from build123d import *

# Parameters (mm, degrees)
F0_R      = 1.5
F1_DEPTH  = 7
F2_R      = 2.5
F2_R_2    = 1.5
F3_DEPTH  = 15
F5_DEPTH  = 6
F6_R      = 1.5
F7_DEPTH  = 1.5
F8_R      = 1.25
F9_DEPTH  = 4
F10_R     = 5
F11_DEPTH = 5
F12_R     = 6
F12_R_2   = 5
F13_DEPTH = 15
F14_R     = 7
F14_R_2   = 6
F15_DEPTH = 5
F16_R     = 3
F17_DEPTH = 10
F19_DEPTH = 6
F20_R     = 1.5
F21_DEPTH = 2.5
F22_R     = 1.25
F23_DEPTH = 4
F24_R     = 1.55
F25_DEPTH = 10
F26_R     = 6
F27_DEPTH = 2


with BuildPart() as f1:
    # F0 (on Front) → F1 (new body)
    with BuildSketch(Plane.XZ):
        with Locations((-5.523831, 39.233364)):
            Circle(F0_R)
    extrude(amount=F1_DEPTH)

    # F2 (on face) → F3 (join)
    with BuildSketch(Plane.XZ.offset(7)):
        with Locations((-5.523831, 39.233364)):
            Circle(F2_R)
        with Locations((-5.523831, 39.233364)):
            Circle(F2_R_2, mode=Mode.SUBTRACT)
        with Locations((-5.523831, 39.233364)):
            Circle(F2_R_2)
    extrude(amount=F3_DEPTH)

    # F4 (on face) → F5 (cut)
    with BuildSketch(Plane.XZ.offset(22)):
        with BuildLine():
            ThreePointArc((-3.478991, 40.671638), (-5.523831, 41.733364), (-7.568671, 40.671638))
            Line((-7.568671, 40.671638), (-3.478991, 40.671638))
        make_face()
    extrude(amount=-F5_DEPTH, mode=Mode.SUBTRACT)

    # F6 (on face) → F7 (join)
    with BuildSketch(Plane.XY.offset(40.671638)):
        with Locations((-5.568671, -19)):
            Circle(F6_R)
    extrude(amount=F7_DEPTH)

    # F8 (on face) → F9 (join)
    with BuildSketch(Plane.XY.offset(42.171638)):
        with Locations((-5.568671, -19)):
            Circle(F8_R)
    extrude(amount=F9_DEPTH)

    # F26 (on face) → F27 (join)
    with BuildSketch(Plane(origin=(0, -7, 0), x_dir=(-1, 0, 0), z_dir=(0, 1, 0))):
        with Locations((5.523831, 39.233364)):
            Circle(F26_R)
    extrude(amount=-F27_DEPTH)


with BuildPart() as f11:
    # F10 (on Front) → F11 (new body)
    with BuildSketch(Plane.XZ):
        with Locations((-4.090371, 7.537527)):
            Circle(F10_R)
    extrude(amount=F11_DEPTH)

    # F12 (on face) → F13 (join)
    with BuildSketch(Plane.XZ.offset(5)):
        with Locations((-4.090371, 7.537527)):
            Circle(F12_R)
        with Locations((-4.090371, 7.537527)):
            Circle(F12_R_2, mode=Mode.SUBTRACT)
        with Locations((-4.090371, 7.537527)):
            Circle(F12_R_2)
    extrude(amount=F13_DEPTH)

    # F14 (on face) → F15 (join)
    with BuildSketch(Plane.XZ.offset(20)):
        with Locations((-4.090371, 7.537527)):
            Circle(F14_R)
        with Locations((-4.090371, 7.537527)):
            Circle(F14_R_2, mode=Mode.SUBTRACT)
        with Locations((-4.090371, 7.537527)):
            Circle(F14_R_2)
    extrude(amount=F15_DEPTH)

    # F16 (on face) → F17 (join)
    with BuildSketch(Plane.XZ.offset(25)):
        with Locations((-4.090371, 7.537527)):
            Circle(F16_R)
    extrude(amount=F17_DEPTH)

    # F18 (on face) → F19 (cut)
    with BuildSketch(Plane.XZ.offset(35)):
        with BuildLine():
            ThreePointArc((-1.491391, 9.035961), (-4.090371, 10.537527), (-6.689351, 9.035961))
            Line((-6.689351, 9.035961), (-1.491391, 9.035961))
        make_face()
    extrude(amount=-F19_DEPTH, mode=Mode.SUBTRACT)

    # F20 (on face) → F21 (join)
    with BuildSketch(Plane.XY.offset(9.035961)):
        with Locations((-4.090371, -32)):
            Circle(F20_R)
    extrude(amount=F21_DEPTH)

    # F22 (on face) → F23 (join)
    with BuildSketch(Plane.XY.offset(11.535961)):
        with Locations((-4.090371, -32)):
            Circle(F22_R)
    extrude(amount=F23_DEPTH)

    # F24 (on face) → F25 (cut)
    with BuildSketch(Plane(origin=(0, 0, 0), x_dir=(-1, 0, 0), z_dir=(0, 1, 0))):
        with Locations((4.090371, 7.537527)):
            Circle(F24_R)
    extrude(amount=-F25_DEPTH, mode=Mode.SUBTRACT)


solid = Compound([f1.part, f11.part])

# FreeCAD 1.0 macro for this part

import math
import FreeCAD as App
import Part
import Sketcher

doc = App.newDocument("Part")
body = doc.addObject("PartDesign::Body", "Body")

# Sketch on XZ plane
sketch1 = body.newObject("Sketcher::SketchObject", "Sketch")
sketch1.AttachmentSupport = (doc.getObject("XZ_Plane"), [""])
sketch1.MapMode = "FlatFace"
sketch1.addGeometry(Part.Circle(App.Vector(-5.5, 39.2, 0), App.Vector(0, 0, 1), 1.5), False)
sketch1.addConstraint(Sketcher.Constraint("Diameter", 0, 3.0))
sketch1.addConstraint(Sketcher.Constraint("DistanceX", 0, 3, -1, 1, 5.523831))
sketch1.addConstraint(Sketcher.Constraint("DistanceY", -1, 1, 0, 3, 39.233364))
pad1 = body.newObject("PartDesign::Pad", "Pad")
pad1.Profile = sketch1
pad1.Length = 7

# Sketch on XZ plane
sketch2 = body.newObject("Sketcher::SketchObject", "Sketch001")
sketch2.AttachmentSupport = (doc.getObject("XZ_Plane"), [""])
sketch2.MapMode = "FlatFace"
sketch2.AttachmentOffset = App.Placement(App.Vector(0, 0, 7), App.Rotation())
sketch2.addGeometry(Part.Circle(App.Vector(-5.5, 39.2, 0), App.Vector(0, 0, 1), 2.5), False)
sketch2.addConstraint(Sketcher.Constraint("Diameter", 0, 5.0))
sketch2.addConstraint(Sketcher.Constraint("DistanceX", 0, 3, -1, 1, 5.523831))
sketch2.addConstraint(Sketcher.Constraint("DistanceY", -1, 1, 0, 3, 39.233364))
pad2 = body.newObject("PartDesign::Pad", "Pad001")
pad2.Profile = sketch2
pad2.Length = 15

# Sketch on XZ plane
sketch3 = body.newObject("Sketcher::SketchObject", "Sketch002")
sketch3.AttachmentSupport = (doc.getObject("XZ_Plane"), [""])
sketch3.MapMode = "FlatFace"
sketch3.AttachmentOffset = App.Placement(App.Vector(0, 0, 22), App.Rotation())
sketch3.addGeometry(Part.ArcOfCircle(Part.Circle(App.Vector(-5.5, 39.2, 0), App.Vector(0, 0, 1), 2.5), math.radians(35), math.radians(145)), False)
sketch3.addGeometry(Part.LineSegment(App.Vector(-7.6, 40.7, 0), App.Vector(-3.5, 40.7, 0)), False)
sketch3.addConstraint(Sketcher.Constraint("Coincident", 0, 1, 1, 2))
sketch3.addConstraint(Sketcher.Constraint("Coincident", 1, 1, 0, 2))
sketch3.addConstraint(Sketcher.Constraint("Horizontal", 1))
sketch3.addConstraint(Sketcher.Constraint("Radius", 0, 2.500001))
sketch3.addConstraint(Sketcher.Constraint("DistanceX", 1, 1, 1, 2, 4.08968))
sketch3.addConstraint(Sketcher.Constraint("DistanceX", 0, 3, -1, 1, 5.523831))
sketch3.addConstraint(Sketcher.Constraint("DistanceY", -1, 1, 1, 1, 40.671638))
pocket1 = body.newObject("PartDesign::Pocket", "Pocket")
pocket1.Profile = sketch3
pocket1.Length = 6

# Sketch on XY plane
sketch4 = body.newObject("Sketcher::SketchObject", "Sketch003")
sketch4.AttachmentSupport = (doc.getObject("XY_Plane"), [""])
sketch4.MapMode = "FlatFace"
sketch4.AttachmentOffset = App.Placement(App.Vector(0, 0, 40.671638), App.Rotation())
sketch4.addGeometry(Part.Circle(App.Vector(-5.6, -19, 0), App.Vector(0, 0, 1), 1.5), False)
sketch4.addConstraint(Sketcher.Constraint("Diameter", 0, 3.0))
sketch4.addConstraint(Sketcher.Constraint("DistanceY", 0, 3, -1, 1, 19.0))
sketch4.addConstraint(Sketcher.Constraint("DistanceX", 0, 3, -1, 1, 5.568671))
pad3 = body.newObject("PartDesign::Pad", "Pad002")
pad3.Profile = sketch4
pad3.Length = 1.5

# Sketch on XY plane
sketch5 = body.newObject("Sketcher::SketchObject", "Sketch004")
sketch5.AttachmentSupport = (doc.getObject("XY_Plane"), [""])
sketch5.MapMode = "FlatFace"
sketch5.AttachmentOffset = App.Placement(App.Vector(0, 0, 42.171638), App.Rotation())
sketch5.addGeometry(Part.Circle(App.Vector(-5.6, -19, 0), App.Vector(0, 0, 1), 1.2), False)
sketch5.addConstraint(Sketcher.Constraint("Diameter", 0, 2.5))
sketch5.addConstraint(Sketcher.Constraint("DistanceY", 0, 3, -1, 1, 19.0))
sketch5.addConstraint(Sketcher.Constraint("DistanceX", 0, 3, -1, 1, 5.568671))
pad4 = body.newObject("PartDesign::Pad", "Pad003")
pad4.Profile = sketch5
pad4.Length = 4

# Sketch on XZ plane
sketch6 = body.newObject("Sketcher::SketchObject", "Sketch005")
sketch6.AttachmentSupport = (doc.getObject("XZ_Plane"), [""])
sketch6.MapMode = "FlatFace"
sketch6.AttachmentOffset = App.Placement(App.Vector(0, 0, 7), App.Rotation())
sketch6.addGeometry(Part.Circle(App.Vector(-6, 39, 0), App.Vector(0, 0, 1), 6), False)
sketch6.addConstraint(Sketcher.Constraint("Diameter", 0, 12.0))
sketch6.addConstraint(Sketcher.Constraint("DistanceX", 0, 3, -1, 1, 5.523831))
sketch6.addConstraint(Sketcher.Constraint("DistanceY", -1, 1, 0, 3, 39.233364))
pad5 = body.newObject("PartDesign::Pad", "Pad004")
pad5.Profile = sketch6
pad5.Length = 2
body2 = doc.addObject("PartDesign::Body", "Body001")

# Sketch on XZ plane
sketch7 = body2.newObject("Sketcher::SketchObject", "Sketch006")
sketch7.AttachmentSupport = (doc.getObject("XZ_Plane001"), [""])
sketch7.MapMode = "FlatFace"
sketch7.addGeometry(Part.Circle(App.Vector(-4, 8, 0), App.Vector(0, 0, 1), 5), False)
sketch7.addConstraint(Sketcher.Constraint("Diameter", 0, 10.0))
sketch7.addConstraint(Sketcher.Constraint("DistanceX", 0, 3, -1, 1, 4.090371))
sketch7.addConstraint(Sketcher.Constraint("DistanceY", -1, 1, 0, 3, 7.537527))
pad6 = body2.newObject("PartDesign::Pad", "Pad005")
pad6.Profile = sketch7
pad6.Length = 5

# Sketch on XZ plane
sketch8 = body2.newObject("Sketcher::SketchObject", "Sketch007")
sketch8.AttachmentSupport = (doc.getObject("XZ_Plane001"), [""])
sketch8.MapMode = "FlatFace"
sketch8.AttachmentOffset = App.Placement(App.Vector(0, 0, 5), App.Rotation())
sketch8.addGeometry(Part.Circle(App.Vector(-4, 8, 0), App.Vector(0, 0, 1), 6), False)
sketch8.addConstraint(Sketcher.Constraint("Diameter", 0, 12.0))
sketch8.addConstraint(Sketcher.Constraint("DistanceX", 0, 3, -1, 1, 4.090371))
sketch8.addConstraint(Sketcher.Constraint("DistanceY", -1, 1, 0, 3, 7.537527))
pad7 = body2.newObject("PartDesign::Pad", "Pad006")
pad7.Profile = sketch8
pad7.Length = 15

# Sketch on XZ plane
sketch9 = body2.newObject("Sketcher::SketchObject", "Sketch008")
sketch9.AttachmentSupport = (doc.getObject("XZ_Plane001"), [""])
sketch9.MapMode = "FlatFace"
sketch9.AttachmentOffset = App.Placement(App.Vector(0, 0, 20), App.Rotation())
sketch9.addGeometry(Part.Circle(App.Vector(-4, 8, 0), App.Vector(0, 0, 1), 7), False)
sketch9.addConstraint(Sketcher.Constraint("Diameter", 0, 14.0))
sketch9.addConstraint(Sketcher.Constraint("DistanceX", 0, 3, -1, 1, 4.090371))
sketch9.addConstraint(Sketcher.Constraint("DistanceY", -1, 1, 0, 3, 7.537527))
pad8 = body2.newObject("PartDesign::Pad", "Pad007")
pad8.Profile = sketch9
pad8.Length = 5

# Sketch on XZ plane
sketch10 = body2.newObject("Sketcher::SketchObject", "Sketch009")
sketch10.AttachmentSupport = (doc.getObject("XZ_Plane001"), [""])
sketch10.MapMode = "FlatFace"
sketch10.AttachmentOffset = App.Placement(App.Vector(0, 0, 25), App.Rotation())
sketch10.addGeometry(Part.Circle(App.Vector(-4.1, 7.5, 0), App.Vector(0, 0, 1), 3), False)
sketch10.addConstraint(Sketcher.Constraint("Diameter", 0, 6.0))
sketch10.addConstraint(Sketcher.Constraint("DistanceX", 0, 3, -1, 1, 4.090371))
sketch10.addConstraint(Sketcher.Constraint("DistanceY", -1, 1, 0, 3, 7.537527))
pad9 = body2.newObject("PartDesign::Pad", "Pad008")
pad9.Profile = sketch10
pad9.Length = 10

# Sketch on XZ plane
sketch11 = body2.newObject("Sketcher::SketchObject", "Sketch010")
sketch11.AttachmentSupport = (doc.getObject("XZ_Plane001"), [""])
sketch11.MapMode = "FlatFace"
sketch11.AttachmentOffset = App.Placement(App.Vector(0, 0, 35), App.Rotation())
sketch11.addGeometry(Part.ArcOfCircle(Part.Circle(App.Vector(-4.1, 7.5, 0), App.Vector(0, 0, 1), 3), math.radians(30), math.radians(150)), False)
sketch11.addGeometry(Part.LineSegment(App.Vector(-6.7, 9, 0), App.Vector(-1.5, 9, 0)), False)
sketch11.addConstraint(Sketcher.Constraint("Coincident", 0, 1, 1, 2))
sketch11.addConstraint(Sketcher.Constraint("Coincident", 1, 1, 0, 2))
sketch11.addConstraint(Sketcher.Constraint("Horizontal", 1))
sketch11.addConstraint(Sketcher.Constraint("Radius", 0, 3.0))
sketch11.addConstraint(Sketcher.Constraint("DistanceX", 1, 1, 1, 2, 5.19796))
sketch11.addConstraint(Sketcher.Constraint("DistanceX", 0, 3, -1, 1, 4.090371))
sketch11.addConstraint(Sketcher.Constraint("DistanceY", -1, 1, 0, 1, 9.035961))
pocket2 = body2.newObject("PartDesign::Pocket", "Pocket001")
pocket2.Profile = sketch11
pocket2.Length = 6

# Sketch on XY plane
sketch12 = body2.newObject("Sketcher::SketchObject", "Sketch011")
sketch12.AttachmentSupport = (doc.getObject("XY_Plane001"), [""])
sketch12.MapMode = "FlatFace"
sketch12.AttachmentOffset = App.Placement(App.Vector(0, 0, 9.035961), App.Rotation())
sketch12.addGeometry(Part.Circle(App.Vector(-4.1, -32, 0), App.Vector(0, 0, 1), 1.5), False)
sketch12.addConstraint(Sketcher.Constraint("Diameter", 0, 3.0))
sketch12.addConstraint(Sketcher.Constraint("DistanceY", 0, 3, -1, 1, 32.0))
sketch12.addConstraint(Sketcher.Constraint("DistanceX", 0, 3, -1, 1, 4.090371))
pad10 = body2.newObject("PartDesign::Pad", "Pad009")
pad10.Profile = sketch12
pad10.Length = 2.5

# Sketch on XY plane
sketch13 = body2.newObject("Sketcher::SketchObject", "Sketch012")
sketch13.AttachmentSupport = (doc.getObject("XY_Plane001"), [""])
sketch13.MapMode = "FlatFace"
sketch13.AttachmentOffset = App.Placement(App.Vector(0, 0, 11.535961), App.Rotation())
sketch13.addGeometry(Part.Circle(App.Vector(-4.1, -32, 0), App.Vector(0, 0, 1), 1.2), False)
sketch13.addConstraint(Sketcher.Constraint("Diameter", 0, 2.5))
sketch13.addConstraint(Sketcher.Constraint("DistanceY", 0, 3, -1, 1, 32.0))
sketch13.addConstraint(Sketcher.Constraint("DistanceX", 0, 3, -1, 1, 4.090371))
pad11 = body2.newObject("PartDesign::Pad", "Pad010")
pad11.Profile = sketch13
pad11.Length = 4

# Sketch on XZ plane
sketch14 = body2.newObject("Sketcher::SketchObject", "Sketch013")
sketch14.AttachmentSupport = (doc.getObject("XZ_Plane001"), [""])
sketch14.MapMode = "FlatFace"
sketch14.addGeometry(Part.Circle(App.Vector(-4.1, 7.5, 0), App.Vector(0, 0, 1), 1.6), False)
sketch14.addConstraint(Sketcher.Constraint("Diameter", 0, 3.1))
sketch14.addConstraint(Sketcher.Constraint("DistanceX", 0, 3, -1, 1, 4.090371))
sketch14.addConstraint(Sketcher.Constraint("DistanceY", -1, 1, 0, 3, 7.537527))
pocket3 = body2.newObject("PartDesign::Pocket", "Pocket002")
pocket3.Profile = sketch14
pocket3.Length = 10
pocket3.Reversed = True

doc.recompute()
